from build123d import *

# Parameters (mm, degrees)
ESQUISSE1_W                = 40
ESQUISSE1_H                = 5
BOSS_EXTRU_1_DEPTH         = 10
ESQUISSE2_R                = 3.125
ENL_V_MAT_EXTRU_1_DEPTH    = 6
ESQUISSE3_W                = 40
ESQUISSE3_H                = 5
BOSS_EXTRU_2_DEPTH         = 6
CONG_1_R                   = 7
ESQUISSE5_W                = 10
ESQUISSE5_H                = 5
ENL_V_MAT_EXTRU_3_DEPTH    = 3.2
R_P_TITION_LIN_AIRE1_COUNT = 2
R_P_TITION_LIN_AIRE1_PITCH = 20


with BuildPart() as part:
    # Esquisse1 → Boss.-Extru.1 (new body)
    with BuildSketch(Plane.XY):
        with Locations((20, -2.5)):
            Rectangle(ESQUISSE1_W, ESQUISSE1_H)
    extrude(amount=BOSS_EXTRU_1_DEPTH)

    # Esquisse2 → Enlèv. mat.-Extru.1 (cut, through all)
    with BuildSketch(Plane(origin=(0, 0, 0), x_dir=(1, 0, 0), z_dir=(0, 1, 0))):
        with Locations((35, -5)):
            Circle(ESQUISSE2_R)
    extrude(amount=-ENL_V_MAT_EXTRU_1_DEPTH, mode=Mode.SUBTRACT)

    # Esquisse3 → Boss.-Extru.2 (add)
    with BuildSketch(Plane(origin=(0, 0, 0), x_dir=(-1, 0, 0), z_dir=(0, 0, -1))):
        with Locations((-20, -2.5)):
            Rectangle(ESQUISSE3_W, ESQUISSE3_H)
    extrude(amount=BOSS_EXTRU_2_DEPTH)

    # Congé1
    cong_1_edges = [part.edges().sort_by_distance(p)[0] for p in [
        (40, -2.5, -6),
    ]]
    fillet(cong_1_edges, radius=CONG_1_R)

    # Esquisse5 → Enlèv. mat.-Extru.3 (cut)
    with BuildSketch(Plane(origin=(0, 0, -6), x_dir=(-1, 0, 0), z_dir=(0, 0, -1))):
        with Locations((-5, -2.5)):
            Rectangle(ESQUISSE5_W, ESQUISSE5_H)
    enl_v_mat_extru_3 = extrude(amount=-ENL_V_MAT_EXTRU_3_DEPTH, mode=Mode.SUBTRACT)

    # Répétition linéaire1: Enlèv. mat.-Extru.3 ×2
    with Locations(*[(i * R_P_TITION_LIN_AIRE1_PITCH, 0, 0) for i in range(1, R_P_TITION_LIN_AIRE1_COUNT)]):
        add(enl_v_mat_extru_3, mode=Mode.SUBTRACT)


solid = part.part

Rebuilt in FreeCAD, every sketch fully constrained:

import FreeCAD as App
import Part
import Sketcher
Q = App.Units.Quantity


def edges_at(feature, points):
    """Names of the edges that pass closest to the given points."""
    edges = feature.Shape.Edges
    near = lambda p: min(range(len(edges)), key=lambda i: edges[i].distToShape(Part.Vertex(*p))[0])
    return sorted({f"Edge{near(p) + 1}" for p in points})


def add_polygon(sketch, points):
    """Adds a closed chain of lines whose ends are joined by coincident constraints."""
    first, n = sketch.GeometryCount, len(points)
    for a, b in zip(points, points[1:] + points[:1]):
        sketch.addGeometry(Part.LineSegment(App.Vector(*a, 0), App.Vector(*b, 0)), False)
    for i in range(n):
        sketch.addConstraint(Sketcher.Constraint("Coincident", first + i, 2, first + (i + 1) % n, 1))

doc = App.newDocument("Part")
params = doc.addObject("Spreadsheet::Sheet", "Params")
for row, (alias, value) in enumerate([
    ("sketch1_width", "40 mm"),
    ("sketch1_height", "5 mm"),
    ("pad1_length", "10 mm"),
    ("sketch2_diameter", "6.25 mm"),
    ("sketch3_width", "40 mm"),
    ("sketch3_height", "5 mm"),
    ("pad2_length", "6 mm"),
    ("fillet_radius", "7 mm"),
    ("sketch4_width", "10 mm"),
    ("sketch4_height", "5 mm"),
    ("pocket2_length", "3.2 mm"),
    ("linearpattern_pitch", "20 mm"),
], start=1):
    params.set(f"A{row}", alias)
    params.set(f"B{row}", "=" + value)
    params.setAlias(f"B{row}", alias)

body = doc.addObject("PartDesign::Body", "Body")

sketch1 = body.newObject("Sketcher::SketchObject", "Sketch")
sketch1.AttachmentSupport = (doc.getObject("XY_Plane"), [""])
sketch1.MapMode = "FlatFace"
add_polygon(sketch1, [(0, 0), (0, -5), (40, -5), (40, 0)])
sketch1.addConstraint([
    Sketcher.Constraint("Vertical", 0),
    Sketcher.Constraint("Horizontal", 1),
    Sketcher.Constraint("Vertical", 2),
    Sketcher.Constraint("Horizontal", 3),
    Sketcher.Constraint("Coincident", 3, 2, -1, 1),
    Sketcher.Constraint("DistanceX", 1, 1, 1, 2, Q("40 mm")),
    Sketcher.Constraint("DistanceY", 0, 2, 0, 1, Q("5 mm")),
])
sketch1.setExpression("Constraints[9]", "Params.sketch1_width")
sketch1.setExpression("Constraints[10]", "Params.sketch1_height")
pad1 = body.newObject("PartDesign::Pad", "Pad")
pad1.Profile = sketch1
pad1.setExpression("Length", "Params.pad1_length")

sketch2 = body.newObject("Sketcher::SketchObject", "Sketch001")
sketch2.AttachmentSupport = (doc.getObject("XZ_Plane"), [""])
sketch2.MapMode = "FlatFace"
sketch2.addGeometry(Part.Circle(App.Vector(35, 5, 0), App.Vector(0, 0, 1), 3.125), False)
sketch2.addConstraint([
    Sketcher.Constraint("Diameter", 0, Q("6.25 mm")),
    Sketcher.Constraint("DistanceX", -1, 1, 0, 3, Q("35 mm")),
    Sketcher.Constraint("DistanceY", -1, 1, 0, 3, Q("5 mm")),
])
sketch2.setExpression("Constraints[0]", "Params.sketch2_diameter")
pocket1 = body.newObject("PartDesign::Pocket", "Pocket")
pocket1.Profile = sketch2
pocket1.Type = "ThroughAll"
pocket1.Reversed = True

sketch3 = body.newObject("Sketcher::SketchObject", "Sketch002")
sketch3.AttachmentSupport = (doc.getObject("XY_Plane"), [""])
sketch3.MapMode = "FlatFace"
add_polygon(sketch3, [(40, 0), (40, -5), (0, -5), (0, 0)])
sketch3.addConstraint([
    Sketcher.Constraint("Vertical", 0),
    Sketcher.Constraint("Horizontal", 1),
    Sketcher.Constraint("Vertical", 2),
    Sketcher.Constraint("Horizontal", 3),
    Sketcher.Constraint("Coincident", 2, 2, -1, 1),
    Sketcher.Constraint("DistanceX", 1, 2, 1, 1, Q("40 mm")),
    Sketcher.Constraint("DistanceY", 0, 2, 0, 1, Q("5 mm")),
])
sketch3.setExpression("Constraints[9]", "Params.sketch3_width")
sketch3.setExpression("Constraints[10]", "Params.sketch3_height")
pad2 = body.newObject("PartDesign::Pad", "Pad001")
pad2.Profile = sketch3
pad2.setExpression("Length", "Params.pad2_length")
pad2.Reversed = True
doc.recompute()

fillet = body.newObject("PartDesign::Fillet", "Fillet")
fillet.Base = (pad2, edges_at(pad2, [(40, -2.5, -6)]))
fillet.setExpression("Radius", "Params.fillet_radius")

sketch4 = body.newObject("Sketcher::SketchObject", "Sketch003")
sketch4.AttachmentSupport = (doc.getObject("XY_Plane"), [""])
sketch4.MapMode = "FlatFace"
sketch4.AttachmentOffset = App.Placement(App.Vector(0, 0, -6), App.Rotation())
add_polygon(sketch4, [(10, 0), (10, -5), (0, -5), (0, 0)])
sketch4.addConstraint([
    Sketcher.Constraint("Vertical", 0),
    Sketcher.Constraint("Horizontal", 1),
    Sketcher.Constraint("Vertical", 2),
    Sketcher.Constraint("Horizontal", 3),
    Sketcher.Constraint("Coincident", 2, 2, -1, 1),
    Sketcher.Constraint("DistanceX", 1, 2, 1, 1, Q("10 mm")),
    Sketcher.Constraint("DistanceY", 0, 2, 0, 1, Q("5 mm")),
])
sketch4.setExpression("Constraints[9]", "Params.sketch4_width")
sketch4.setExpression("Constraints[10]", "Params.sketch4_height")
pocket2 = body.newObject("PartDesign::Pocket", "Pocket001")
pocket2.Profile = sketch4
pocket2.setExpression("Length", "Params.pocket2_length")
pocket2.Reversed = True
doc.recompute()

linearpattern = body.newObject("PartDesign::LinearPattern", "LinearPattern")
linearpattern.Originals = [pocket2]
linearpattern.Direction = (doc.getObject("X_Axis"), [""])
linearpattern.Mode = "offset"
linearpattern.setExpression("Offset", "Params.linearpattern_pitch")
linearpattern.Occurrences = 2
body.Tip = linearpattern

doc.recompute()
